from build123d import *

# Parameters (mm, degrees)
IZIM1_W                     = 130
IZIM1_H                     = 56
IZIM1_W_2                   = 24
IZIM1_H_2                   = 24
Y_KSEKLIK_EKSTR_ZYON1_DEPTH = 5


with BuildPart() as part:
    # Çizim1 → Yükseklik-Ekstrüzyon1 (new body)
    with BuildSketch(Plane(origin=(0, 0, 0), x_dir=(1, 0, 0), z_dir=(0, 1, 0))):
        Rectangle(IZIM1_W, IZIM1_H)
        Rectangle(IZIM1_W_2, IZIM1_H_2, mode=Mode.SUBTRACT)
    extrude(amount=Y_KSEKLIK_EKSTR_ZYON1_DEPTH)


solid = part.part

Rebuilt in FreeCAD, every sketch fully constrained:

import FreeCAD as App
import Part
import Sketcher
from FreeCAD import Vector

doc = App.newDocument("Part")
body = doc.addObject("PartDesign::Body", "Body")

# Sketch on XZ plane
sketch1 = body.newObject("Sketcher::SketchObject", "Sketch")
sketch1.AttachmentSupport = (doc.getObject("XZ_Plane"), [""])
sketch1.MapMode = "FlatFace"
sketch1.addGeometry([
    Part.LineSegment(Vector(-65, -28, 0), Vector(-65, 28, 0)),  # 0
    Part.LineSegment(Vector(-65, 28, 0), Vector(65, 28, 0)),  # 1
    Part.LineSegment(Vector(65, 28, 0), Vector(65, -28, 0)),  # 2
    Part.LineSegment(Vector(65, -28, 0), Vector(-65, -28, 0)),  # 3
    Part.LineSegment(Vector(12, 12, 0), Vector(-12, 12, 0)),  # 4
    Part.LineSegment(Vector(-12, 12, 0), Vector(-12, -12, 0)),  # 5
    Part.LineSegment(Vector(-12, -12, 0), Vector(12, -12, 0)),  # 6
    Part.LineSegment(Vector(12, -12, 0), Vector(12, 12, 0)),  # 7
], False)
sketch1.addConstraint([
    Sketcher.Constraint("Coincident", 0, 2, 1, 1),
    Sketcher.Constraint("Coincident", 1, 2, 2, 1),
    Sketcher.Constraint("Coincident", 2, 2, 3, 1),
    Sketcher.Constraint("Coincident", 3, 2, 0, 1),
    Sketcher.Constraint("Coincident", 4, 2, 5, 1),
    Sketcher.Constraint("Coincident", 5, 2, 6, 1),
    Sketcher.Constraint("Coincident", 6, 2, 7, 1),
    Sketcher.Constraint("Coincident", 7, 2, 4, 1),
    Sketcher.Constraint("Vertical", 0),
    Sketcher.Constraint("Horizontal", 1),
    Sketcher.Constraint("Vertical", 2),
    Sketcher.Constraint("Horizontal", 3),
    Sketcher.Constraint("Horizontal", 4),
    Sketcher.Constraint("Vertical", 5),
    Sketcher.Constraint("Horizontal", 6),
    Sketcher.Constraint("Vertical", 7),
    Sketcher.Constraint("Symmetric", 0, 2, 2, 2, -1, 1),
    Sketcher.Constraint("Symmetric", 4, 2, 6, 2, -1, 1),
    Sketcher.Constraint("Equal", 6, 5),
    Sketcher.Constraint("DistanceX", 1, 1, 1, 2, 130.0),
    Sketcher.Constraint("DistanceX", 4, 2, 4, 1, 24.0),
    Sketcher.Constraint("DistanceY", 0, 1, 0, 2, 56.0),
])
pad1 = body.newObject("PartDesign::Pad", "Pad")
pad1.Profile = sketch1
pad1.Length = 5
pad1.Reversed = True

doc.recompute()
